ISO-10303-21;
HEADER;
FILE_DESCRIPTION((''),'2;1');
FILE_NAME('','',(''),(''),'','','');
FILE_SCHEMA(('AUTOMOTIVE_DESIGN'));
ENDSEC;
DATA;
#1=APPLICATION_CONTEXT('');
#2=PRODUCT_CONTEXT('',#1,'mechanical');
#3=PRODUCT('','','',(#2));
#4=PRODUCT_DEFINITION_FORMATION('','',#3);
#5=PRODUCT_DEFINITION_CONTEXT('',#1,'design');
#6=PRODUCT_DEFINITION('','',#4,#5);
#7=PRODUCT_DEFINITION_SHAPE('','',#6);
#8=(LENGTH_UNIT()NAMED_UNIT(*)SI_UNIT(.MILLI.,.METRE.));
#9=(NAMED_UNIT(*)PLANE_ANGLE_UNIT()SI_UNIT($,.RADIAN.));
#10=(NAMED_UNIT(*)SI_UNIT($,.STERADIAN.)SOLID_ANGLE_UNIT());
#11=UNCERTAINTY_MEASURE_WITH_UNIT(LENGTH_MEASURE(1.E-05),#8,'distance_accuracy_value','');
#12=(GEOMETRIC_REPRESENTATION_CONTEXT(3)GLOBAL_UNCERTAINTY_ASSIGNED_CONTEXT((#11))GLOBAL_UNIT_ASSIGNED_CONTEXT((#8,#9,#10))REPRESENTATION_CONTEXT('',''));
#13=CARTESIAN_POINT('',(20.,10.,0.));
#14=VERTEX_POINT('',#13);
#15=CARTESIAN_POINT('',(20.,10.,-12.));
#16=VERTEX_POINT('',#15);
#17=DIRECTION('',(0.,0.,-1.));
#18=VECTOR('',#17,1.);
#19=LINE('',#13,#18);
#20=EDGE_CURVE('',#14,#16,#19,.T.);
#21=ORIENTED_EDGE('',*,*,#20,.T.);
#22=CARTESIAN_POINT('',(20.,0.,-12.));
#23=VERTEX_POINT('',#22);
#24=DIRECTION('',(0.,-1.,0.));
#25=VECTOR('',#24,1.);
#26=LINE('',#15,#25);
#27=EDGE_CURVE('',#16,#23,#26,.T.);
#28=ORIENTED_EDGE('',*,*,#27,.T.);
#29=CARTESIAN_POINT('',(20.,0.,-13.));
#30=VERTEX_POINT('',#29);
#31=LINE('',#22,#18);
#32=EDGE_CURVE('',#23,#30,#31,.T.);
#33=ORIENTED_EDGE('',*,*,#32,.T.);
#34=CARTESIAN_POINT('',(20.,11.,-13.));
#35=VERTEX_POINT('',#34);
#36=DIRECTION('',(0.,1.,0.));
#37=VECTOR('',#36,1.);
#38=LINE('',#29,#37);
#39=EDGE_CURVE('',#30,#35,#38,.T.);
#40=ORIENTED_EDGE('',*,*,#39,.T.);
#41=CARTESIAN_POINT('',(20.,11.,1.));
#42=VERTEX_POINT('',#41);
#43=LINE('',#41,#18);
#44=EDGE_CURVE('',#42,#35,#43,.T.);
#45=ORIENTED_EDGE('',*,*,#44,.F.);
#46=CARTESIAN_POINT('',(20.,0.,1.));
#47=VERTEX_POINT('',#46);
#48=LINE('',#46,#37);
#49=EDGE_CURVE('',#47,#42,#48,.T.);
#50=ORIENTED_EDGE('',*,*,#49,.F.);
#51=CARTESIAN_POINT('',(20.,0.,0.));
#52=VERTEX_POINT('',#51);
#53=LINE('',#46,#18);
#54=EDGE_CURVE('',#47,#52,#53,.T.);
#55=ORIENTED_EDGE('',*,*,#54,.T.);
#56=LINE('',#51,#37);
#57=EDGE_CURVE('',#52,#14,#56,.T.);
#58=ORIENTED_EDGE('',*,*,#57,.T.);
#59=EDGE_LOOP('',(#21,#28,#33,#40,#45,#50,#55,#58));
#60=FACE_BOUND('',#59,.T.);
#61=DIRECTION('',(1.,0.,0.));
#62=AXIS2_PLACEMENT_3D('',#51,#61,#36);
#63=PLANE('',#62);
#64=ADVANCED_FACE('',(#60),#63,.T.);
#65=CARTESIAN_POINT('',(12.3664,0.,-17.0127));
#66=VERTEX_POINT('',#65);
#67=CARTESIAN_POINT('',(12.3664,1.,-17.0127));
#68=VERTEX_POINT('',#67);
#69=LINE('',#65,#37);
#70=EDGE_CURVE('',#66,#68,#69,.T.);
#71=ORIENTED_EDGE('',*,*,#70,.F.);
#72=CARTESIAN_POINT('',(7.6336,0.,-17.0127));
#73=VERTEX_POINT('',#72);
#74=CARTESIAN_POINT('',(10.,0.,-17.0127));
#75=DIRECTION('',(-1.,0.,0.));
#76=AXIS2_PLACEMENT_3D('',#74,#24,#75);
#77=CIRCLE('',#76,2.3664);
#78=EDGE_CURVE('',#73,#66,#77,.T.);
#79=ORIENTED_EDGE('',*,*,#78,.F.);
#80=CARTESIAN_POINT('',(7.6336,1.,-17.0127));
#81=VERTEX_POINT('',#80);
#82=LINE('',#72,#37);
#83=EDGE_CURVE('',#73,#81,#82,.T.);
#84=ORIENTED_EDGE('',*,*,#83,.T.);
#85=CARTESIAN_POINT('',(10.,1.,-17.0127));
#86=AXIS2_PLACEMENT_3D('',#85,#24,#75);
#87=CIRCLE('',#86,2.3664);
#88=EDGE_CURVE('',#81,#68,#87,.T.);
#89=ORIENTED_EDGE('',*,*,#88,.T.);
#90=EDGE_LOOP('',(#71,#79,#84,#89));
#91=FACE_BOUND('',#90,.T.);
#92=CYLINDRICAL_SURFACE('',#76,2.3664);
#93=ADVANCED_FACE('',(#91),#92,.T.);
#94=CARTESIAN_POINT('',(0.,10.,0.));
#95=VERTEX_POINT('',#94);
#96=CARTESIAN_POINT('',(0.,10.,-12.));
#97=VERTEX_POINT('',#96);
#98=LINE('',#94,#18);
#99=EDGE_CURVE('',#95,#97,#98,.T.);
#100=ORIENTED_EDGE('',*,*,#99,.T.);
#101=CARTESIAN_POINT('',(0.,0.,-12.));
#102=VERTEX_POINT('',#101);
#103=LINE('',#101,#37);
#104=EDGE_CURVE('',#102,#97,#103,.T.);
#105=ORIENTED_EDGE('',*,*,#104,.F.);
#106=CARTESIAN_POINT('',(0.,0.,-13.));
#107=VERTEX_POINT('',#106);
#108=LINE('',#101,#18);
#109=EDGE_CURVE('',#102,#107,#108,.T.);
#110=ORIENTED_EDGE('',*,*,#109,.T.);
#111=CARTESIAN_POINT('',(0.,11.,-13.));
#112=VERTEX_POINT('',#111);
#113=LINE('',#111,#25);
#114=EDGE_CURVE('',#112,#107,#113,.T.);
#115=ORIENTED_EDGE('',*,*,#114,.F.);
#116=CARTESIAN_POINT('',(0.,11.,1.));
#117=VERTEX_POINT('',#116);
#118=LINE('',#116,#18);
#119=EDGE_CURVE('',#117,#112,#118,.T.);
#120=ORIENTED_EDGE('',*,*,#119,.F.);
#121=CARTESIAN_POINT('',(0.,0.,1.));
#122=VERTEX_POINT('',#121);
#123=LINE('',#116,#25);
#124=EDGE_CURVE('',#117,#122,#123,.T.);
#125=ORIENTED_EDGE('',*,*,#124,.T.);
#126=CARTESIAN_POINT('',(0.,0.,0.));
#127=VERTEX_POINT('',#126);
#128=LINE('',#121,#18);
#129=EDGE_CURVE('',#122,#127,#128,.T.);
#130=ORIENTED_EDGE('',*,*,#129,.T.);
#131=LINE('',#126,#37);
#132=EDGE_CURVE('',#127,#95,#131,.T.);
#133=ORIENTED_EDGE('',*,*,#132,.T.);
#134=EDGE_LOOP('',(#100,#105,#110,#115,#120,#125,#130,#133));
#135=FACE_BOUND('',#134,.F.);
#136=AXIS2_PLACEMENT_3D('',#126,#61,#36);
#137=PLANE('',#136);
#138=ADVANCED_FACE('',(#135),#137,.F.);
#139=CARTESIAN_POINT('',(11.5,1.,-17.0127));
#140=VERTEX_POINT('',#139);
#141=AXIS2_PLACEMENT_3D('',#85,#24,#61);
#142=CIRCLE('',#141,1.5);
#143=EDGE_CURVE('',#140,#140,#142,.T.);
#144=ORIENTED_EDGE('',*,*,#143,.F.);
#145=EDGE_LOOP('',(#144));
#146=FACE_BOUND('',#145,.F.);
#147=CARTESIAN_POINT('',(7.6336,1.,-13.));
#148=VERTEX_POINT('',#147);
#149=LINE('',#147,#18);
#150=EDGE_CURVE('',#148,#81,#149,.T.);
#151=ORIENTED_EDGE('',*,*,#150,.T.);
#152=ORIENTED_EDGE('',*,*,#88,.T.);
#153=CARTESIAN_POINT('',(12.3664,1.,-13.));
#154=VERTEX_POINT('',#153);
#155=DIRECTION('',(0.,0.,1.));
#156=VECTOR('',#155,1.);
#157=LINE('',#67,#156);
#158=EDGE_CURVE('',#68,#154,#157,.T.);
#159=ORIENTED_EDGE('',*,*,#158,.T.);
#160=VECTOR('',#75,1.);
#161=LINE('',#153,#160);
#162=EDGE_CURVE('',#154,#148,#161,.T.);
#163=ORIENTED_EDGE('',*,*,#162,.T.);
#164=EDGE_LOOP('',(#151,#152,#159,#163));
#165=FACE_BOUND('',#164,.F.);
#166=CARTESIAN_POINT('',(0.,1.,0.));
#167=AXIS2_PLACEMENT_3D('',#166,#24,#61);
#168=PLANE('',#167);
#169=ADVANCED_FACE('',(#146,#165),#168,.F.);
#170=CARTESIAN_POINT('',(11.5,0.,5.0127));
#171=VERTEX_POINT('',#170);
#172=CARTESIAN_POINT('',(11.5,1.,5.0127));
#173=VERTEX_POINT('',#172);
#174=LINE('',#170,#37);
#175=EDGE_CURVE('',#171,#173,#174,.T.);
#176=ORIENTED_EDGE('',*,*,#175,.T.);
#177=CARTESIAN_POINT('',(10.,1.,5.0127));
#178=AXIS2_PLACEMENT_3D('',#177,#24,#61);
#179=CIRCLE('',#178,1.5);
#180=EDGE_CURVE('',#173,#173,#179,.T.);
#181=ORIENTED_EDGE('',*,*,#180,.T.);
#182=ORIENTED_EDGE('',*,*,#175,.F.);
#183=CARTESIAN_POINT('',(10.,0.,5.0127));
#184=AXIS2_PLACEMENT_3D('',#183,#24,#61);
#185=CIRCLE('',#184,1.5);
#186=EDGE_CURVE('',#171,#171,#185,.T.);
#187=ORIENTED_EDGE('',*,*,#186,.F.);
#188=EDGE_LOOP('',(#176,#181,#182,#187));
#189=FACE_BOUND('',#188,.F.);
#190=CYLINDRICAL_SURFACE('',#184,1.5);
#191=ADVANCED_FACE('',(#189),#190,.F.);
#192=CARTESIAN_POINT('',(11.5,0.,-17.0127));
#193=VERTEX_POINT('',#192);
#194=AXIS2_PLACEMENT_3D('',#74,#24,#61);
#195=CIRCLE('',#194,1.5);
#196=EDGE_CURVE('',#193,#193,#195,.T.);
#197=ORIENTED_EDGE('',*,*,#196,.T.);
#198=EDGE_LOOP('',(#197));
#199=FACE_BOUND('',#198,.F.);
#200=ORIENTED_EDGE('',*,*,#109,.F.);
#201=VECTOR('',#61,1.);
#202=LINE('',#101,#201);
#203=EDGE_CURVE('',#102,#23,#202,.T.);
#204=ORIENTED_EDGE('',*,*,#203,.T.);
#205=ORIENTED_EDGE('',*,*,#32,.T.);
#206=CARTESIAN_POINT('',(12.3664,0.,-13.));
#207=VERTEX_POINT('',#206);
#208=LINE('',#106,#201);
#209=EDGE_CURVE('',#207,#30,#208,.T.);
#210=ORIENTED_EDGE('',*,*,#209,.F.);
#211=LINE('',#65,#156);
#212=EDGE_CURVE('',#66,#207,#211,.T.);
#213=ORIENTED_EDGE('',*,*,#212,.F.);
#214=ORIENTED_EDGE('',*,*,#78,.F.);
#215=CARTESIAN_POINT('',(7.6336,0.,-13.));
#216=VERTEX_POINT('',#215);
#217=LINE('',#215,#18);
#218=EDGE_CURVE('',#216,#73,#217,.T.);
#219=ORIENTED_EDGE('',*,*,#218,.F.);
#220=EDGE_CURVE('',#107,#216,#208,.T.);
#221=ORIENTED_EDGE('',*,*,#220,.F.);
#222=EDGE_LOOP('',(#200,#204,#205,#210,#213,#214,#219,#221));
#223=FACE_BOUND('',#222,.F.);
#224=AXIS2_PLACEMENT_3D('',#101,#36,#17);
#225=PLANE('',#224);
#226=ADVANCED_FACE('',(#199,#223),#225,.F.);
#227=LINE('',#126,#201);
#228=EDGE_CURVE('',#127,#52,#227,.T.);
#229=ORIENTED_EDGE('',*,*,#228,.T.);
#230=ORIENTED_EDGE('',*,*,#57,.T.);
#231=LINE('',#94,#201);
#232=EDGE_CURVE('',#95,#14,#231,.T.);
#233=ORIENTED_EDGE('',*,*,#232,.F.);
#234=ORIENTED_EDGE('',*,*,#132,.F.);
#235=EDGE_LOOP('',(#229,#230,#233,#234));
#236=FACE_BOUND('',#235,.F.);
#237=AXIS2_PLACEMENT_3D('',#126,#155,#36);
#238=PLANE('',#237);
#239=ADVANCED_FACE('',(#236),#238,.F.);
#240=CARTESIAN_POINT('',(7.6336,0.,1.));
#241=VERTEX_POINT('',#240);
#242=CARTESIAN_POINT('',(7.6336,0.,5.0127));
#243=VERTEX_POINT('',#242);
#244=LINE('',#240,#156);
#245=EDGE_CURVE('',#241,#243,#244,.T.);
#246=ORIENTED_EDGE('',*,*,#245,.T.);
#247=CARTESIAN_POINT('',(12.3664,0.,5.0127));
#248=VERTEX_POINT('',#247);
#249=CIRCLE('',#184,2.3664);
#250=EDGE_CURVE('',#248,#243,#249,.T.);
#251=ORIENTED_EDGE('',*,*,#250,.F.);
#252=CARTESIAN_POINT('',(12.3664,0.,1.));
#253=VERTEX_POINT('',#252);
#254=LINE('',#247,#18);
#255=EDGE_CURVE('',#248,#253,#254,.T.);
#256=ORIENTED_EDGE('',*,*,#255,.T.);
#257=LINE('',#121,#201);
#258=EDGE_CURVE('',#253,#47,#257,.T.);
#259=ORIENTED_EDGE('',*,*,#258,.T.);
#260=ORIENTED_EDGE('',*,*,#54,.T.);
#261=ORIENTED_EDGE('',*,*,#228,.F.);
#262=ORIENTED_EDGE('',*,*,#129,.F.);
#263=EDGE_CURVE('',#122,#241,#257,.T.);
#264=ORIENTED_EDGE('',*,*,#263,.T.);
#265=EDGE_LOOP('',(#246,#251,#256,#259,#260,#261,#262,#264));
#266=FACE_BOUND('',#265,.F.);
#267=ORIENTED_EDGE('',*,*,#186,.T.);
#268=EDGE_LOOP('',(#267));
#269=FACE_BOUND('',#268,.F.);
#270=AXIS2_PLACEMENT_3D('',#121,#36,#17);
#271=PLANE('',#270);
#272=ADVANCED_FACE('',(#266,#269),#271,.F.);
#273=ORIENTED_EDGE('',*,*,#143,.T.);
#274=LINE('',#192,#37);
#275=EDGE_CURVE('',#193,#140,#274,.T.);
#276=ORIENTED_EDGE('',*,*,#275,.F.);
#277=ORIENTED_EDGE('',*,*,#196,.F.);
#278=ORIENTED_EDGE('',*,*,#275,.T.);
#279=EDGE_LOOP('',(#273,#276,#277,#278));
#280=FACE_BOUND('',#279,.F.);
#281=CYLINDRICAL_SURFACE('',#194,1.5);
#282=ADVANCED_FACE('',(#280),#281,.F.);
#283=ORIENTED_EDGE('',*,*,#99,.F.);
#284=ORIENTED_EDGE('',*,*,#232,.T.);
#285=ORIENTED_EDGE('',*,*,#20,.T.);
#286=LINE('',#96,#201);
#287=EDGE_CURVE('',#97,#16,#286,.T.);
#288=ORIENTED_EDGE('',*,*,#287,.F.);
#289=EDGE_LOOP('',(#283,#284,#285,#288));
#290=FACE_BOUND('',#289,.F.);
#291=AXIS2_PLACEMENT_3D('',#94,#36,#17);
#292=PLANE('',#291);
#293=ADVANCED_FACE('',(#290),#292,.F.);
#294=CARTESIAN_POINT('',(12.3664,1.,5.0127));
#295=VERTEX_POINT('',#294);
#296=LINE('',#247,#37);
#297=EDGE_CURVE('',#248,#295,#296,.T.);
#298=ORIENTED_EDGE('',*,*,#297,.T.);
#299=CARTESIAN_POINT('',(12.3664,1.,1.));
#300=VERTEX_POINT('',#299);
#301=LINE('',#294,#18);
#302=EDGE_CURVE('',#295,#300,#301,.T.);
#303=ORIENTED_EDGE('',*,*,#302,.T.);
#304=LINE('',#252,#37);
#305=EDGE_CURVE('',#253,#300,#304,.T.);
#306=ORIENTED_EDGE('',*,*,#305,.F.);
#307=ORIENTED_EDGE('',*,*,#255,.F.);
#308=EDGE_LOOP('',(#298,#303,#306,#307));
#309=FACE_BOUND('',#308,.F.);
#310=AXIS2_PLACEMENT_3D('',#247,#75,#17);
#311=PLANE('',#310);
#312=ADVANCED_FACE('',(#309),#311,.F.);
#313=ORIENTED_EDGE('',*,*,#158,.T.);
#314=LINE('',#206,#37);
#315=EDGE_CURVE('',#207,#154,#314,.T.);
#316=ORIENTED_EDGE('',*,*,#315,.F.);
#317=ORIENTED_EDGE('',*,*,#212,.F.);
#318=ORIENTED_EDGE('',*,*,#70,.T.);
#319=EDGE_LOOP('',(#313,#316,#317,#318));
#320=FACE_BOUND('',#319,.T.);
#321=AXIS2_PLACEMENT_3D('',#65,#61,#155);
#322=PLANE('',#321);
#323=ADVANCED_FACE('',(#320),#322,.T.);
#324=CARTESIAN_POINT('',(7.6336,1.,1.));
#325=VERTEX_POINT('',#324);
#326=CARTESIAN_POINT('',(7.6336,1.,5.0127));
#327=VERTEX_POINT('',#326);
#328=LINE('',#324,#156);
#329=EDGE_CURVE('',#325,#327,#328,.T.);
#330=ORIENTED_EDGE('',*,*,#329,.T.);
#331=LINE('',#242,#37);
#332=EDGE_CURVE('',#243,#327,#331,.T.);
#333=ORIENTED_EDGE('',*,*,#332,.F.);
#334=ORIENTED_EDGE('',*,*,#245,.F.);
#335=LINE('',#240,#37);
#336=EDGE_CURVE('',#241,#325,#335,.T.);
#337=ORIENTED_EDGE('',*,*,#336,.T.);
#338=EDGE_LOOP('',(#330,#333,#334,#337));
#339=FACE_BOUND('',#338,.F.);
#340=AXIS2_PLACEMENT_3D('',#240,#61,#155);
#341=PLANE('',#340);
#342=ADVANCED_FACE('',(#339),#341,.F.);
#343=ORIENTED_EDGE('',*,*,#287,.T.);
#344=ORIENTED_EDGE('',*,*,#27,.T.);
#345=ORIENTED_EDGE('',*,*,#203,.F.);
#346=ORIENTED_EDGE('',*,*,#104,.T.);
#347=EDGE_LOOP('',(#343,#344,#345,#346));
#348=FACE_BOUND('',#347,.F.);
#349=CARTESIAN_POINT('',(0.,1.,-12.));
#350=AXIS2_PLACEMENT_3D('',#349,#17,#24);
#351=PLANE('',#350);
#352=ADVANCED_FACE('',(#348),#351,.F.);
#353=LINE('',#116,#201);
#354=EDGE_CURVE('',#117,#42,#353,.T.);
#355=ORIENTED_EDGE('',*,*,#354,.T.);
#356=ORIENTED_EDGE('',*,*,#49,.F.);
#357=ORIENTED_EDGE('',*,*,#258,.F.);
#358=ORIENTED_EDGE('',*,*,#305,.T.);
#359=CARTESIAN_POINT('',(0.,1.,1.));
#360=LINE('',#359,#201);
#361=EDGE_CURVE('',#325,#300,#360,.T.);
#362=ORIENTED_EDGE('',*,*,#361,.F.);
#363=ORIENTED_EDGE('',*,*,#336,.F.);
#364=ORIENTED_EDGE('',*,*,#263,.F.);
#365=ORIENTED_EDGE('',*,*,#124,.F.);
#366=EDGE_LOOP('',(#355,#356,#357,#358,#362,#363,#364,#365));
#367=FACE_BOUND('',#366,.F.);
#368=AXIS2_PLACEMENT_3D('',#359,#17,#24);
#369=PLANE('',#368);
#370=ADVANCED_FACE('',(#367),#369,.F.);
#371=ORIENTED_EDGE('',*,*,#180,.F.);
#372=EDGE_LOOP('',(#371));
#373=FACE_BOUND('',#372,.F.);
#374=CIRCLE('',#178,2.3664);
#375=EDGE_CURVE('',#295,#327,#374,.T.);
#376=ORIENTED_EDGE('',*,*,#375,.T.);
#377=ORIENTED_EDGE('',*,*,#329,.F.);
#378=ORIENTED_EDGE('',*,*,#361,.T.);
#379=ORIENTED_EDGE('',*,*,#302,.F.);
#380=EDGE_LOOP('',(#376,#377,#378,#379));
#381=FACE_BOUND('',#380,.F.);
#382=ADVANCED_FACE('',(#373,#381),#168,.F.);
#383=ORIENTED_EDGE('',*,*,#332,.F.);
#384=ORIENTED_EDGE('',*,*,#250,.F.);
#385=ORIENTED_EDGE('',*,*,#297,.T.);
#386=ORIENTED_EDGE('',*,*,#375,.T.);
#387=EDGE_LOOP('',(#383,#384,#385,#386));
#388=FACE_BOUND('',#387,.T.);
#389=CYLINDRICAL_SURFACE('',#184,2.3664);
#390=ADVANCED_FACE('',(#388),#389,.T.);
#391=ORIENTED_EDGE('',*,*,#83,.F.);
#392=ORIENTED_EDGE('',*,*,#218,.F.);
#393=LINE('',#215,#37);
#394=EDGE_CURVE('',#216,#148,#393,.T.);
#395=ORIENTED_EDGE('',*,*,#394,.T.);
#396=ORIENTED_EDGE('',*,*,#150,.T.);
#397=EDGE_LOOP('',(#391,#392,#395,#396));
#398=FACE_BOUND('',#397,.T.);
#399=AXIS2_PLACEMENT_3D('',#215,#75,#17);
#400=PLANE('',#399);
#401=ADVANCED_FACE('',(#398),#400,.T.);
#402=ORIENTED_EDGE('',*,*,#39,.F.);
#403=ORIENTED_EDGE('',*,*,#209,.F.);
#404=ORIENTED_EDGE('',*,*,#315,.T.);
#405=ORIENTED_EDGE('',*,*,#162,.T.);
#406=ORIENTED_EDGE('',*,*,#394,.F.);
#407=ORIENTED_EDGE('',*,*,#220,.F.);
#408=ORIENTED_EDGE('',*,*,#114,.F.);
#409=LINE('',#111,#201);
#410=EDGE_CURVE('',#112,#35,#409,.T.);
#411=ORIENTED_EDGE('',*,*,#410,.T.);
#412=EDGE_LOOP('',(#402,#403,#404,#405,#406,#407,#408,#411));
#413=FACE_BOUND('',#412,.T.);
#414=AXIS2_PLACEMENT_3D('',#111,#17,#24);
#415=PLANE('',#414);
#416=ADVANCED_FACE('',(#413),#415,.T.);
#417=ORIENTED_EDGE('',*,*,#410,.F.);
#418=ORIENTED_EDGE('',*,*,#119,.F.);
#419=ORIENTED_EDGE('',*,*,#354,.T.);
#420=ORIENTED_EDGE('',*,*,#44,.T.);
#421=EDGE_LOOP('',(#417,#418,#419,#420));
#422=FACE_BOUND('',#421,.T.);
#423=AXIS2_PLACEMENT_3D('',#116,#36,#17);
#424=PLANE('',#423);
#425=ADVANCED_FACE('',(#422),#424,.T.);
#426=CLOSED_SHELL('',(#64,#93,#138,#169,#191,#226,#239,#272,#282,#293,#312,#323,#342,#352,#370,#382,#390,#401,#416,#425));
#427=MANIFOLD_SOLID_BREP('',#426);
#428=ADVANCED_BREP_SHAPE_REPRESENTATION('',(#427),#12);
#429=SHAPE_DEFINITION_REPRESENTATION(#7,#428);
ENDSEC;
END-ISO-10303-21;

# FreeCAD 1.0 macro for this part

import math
import FreeCAD as App
import Part
import Sketcher
from FreeCAD import Vector

doc = App.newDocument("Part")
body = doc.addObject("PartDesign::Body", "Body")

sketch1 = body.newObject("Sketcher::SketchObject", "Sketch")
sketch1.AttachmentSupport = (doc.getObject("YZ_Plane"), [""])
sketch1.MapMode = "FlatFace"
sketch1.addGeometry(Part.LineSegment(Vector(0, 1, 0), Vector(0, 0, 0)), False)
sketch1.addGeometry(Part.LineSegment(Vector(0, 0, 0), Vector(10, 0, 0)), False)
sketch1.addGeometry(Part.LineSegment(Vector(10, 0, 0), Vector(10, -12, 0)), False)
sketch1.addGeometry(Part.LineSegment(Vector(10, -12, 0), Vector(0, -12, 0)), False)
sketch1.addGeometry(Part.LineSegment(Vector(0, -12, 0), Vector(0, -13, 0)), False)
sketch1.addGeometry(Part.LineSegment(Vector(0, -13, 0), Vector(11, -13, 0)), False)
sketch1.addGeometry(Part.LineSegment(Vector(11, -13, 0), Vector(11, 1, 0)), False)
sketch1.addGeometry(Part.LineSegment(Vector(11, 1, 0), Vector(0, 1, 0)), False)
sketch1.addConstraint(Sketcher.Constraint("Coincident", 0, 2, 1, 1))
sketch1.addConstraint(Sketcher.Constraint("Coincident", 1, 2, 2, 1))
sketch1.addConstraint(Sketcher.Constraint("Coincident", 2, 2, 3, 1))
sketch1.addConstraint(Sketcher.Constraint("Coincident", 3, 2, 4, 1))
sketch1.addConstraint(Sketcher.Constraint("Coincident", 4, 2, 5, 1))
sketch1.addConstraint(Sketcher.Constraint("Coincident", 5, 2, 6, 1))
sketch1.addConstraint(Sketcher.Constraint("Coincident", 6, 2, 7, 1))
sketch1.addConstraint(Sketcher.Constraint("Coincident", 7, 2, 0, 1))
sketch1.addConstraint(Sketcher.Constraint("Vertical", 0))
sketch1.addConstraint(Sketcher.Constraint("Horizontal", 1))
sketch1.addConstraint(Sketcher.Constraint("Vertical", 2))
sketch1.addConstraint(Sketcher.Constraint("Horizontal", 3))
sketch1.addConstraint(Sketcher.Constraint("Vertical", 4))
sketch1.addConstraint(Sketcher.Constraint("Horizontal", 5))
sketch1.addConstraint(Sketcher.Constraint("Vertical", 6))
sketch1.addConstraint(Sketcher.Constraint("Horizontal", 7))
sketch1.addConstraint(Sketcher.Constraint("Coincident", 0, 2, -1, 1))
sketch1.addConstraint(Sketcher.Constraint("PointOnObject", 3, 2, -2))
sketch1.addConstraint(Sketcher.Constraint("Equal", 0, 4))
sketch1.addConstraint(Sketcher.Constraint("DistanceX", 1, 1, 1, 2, 10.0))
sketch1.addConstraint(Sketcher.Constraint("DistanceX", 5, 1, 5, 2, 11.0))
sketch1.addConstraint(Sketcher.Constraint("DistanceY", 0, 2, 0, 1, 1.0))
sketch1.addConstraint(Sketcher.Constraint("DistanceY", 2, 2, 2, 1, 12.0))
pad1 = body.newObject("PartDesign::Pad", "Pad")
pad1.Profile = sketch1
pad1.Length = 20

sketch2 = body.newObject("Sketcher::SketchObject", "Sketch001")
sketch2.AttachmentSupport = (doc.getObject("XZ_Plane"), [""])
sketch2.MapMode = "FlatFace"
sketch2.addGeometry(Part.LineSegment(Vector(7.6, 5, 0), Vector(7.6, 1, 0)), False)
sketch2.addGeometry(Part.LineSegment(Vector(7.6, 1, 0), Vector(12.4, 1, 0)), False)
sketch2.addGeometry(Part.LineSegment(Vector(12.4, 1, 0), Vector(12.4, 5, 0)), False)
sketch2.addGeometry(Part.ArcOfCircle(Part.Circle(Vector(10, 5, 0), Vector(0, 0, 1), 2.4), math.radians(0), math.radians(180)), False)
sketch2.addGeometry(Part.Circle(Vector(10, 5, 0), Vector(0, 0, 1), 1.5), False)
sketch2.addGeometry(Part.LineSegment(Vector(12.4, -13, 0), Vector(7.6, -13, 0)), False)
sketch2.addGeometry(Part.LineSegment(Vector(7.6, -13, 0), Vector(7.6, -17, 0)), False)
sketch2.addGeometry(Part.ArcOfCircle(Part.Circle(Vector(10, -17, 0), Vector(0, 0, 1), 2.4), math.radians(180), math.radians(360)), False)
sketch2.addGeometry(Part.LineSegment(Vector(12.4, -17, 0), Vector(12.4, -13, 0)), False)
sketch2.addGeometry(Part.Circle(Vector(10, -17, 0), Vector(0, 0, 1), 1.5), False)
sketch2.addConstraint(Sketcher.Constraint("Coincident", 0, 2, 1, 1))
sketch2.addConstraint(Sketcher.Constraint("Coincident", 1, 2, 2, 1))
sketch2.addConstraint(Sketcher.Constraint("Tangent", 2, 2, 3, 1))
sketch2.addConstraint(Sketcher.Constraint("Tangent", 3, 2, 0, 1))
sketch2.addConstraint(Sketcher.Constraint("Coincident", 5, 2, 6, 1))
sketch2.addConstraint(Sketcher.Constraint("Tangent", 6, 2, 7, 1))
sketch2.addConstraint(Sketcher.Constraint("Tangent", 7, 2, 8, 1))
sketch2.addConstraint(Sketcher.Constraint("Coincident", 8, 2, 5, 1))
sketch2.addConstraint(Sketcher.Constraint("Vertical", 0))
sketch2.addConstraint(Sketcher.Constraint("Horizontal", 1))
sketch2.addConstraint(Sketcher.Constraint("Vertical", 2))
sketch2.addConstraint(Sketcher.Constraint("Horizontal", 5))
sketch2.addConstraint(Sketcher.Constraint("Vertical", 6))
sketch2.addConstraint(Sketcher.Constraint("Vertical", 8))
sketch2.addConstraint(Sketcher.Constraint("Coincident", 4, 3, 3, 3))
sketch2.addConstraint(Sketcher.Constraint("Coincident", 9, 3, 7, 3))
sketch2.addConstraint(Sketcher.Constraint("Equal", 3, 7))
sketch2.addConstraint(Sketcher.Constraint("Equal", 4, 9))
sketch2.addConstraint(Sketcher.Constraint("Vertical", 4, 3, 7, 3))
sketch2.addConstraint(Sketcher.Constraint("Equal", 2, 6))
sketch2.addConstraint(Sketcher.Constraint("Diameter", 4, 3.0))
sketch2.addConstraint(Sketcher.Constraint("DistanceX", -1, 1, 3, 3, 10.0))
sketch2.addConstraint(Sketcher.Constraint("DistanceY", -1, 1, 0, 2, 1.0))
sketch2.addConstraint(Sketcher.Constraint("DistanceY", 5, 2, -1, 1, 13.0))
sketch2.addConstraint(Sketcher.Constraint("Radius", 3, 2.3664))
sketch2.addConstraint(Sketcher.Constraint("DistanceY", 0, 2, 0, 1, 4.0127))
pad2 = body.newObject("PartDesign::Pad", "Pad001")
pad2.Profile = sketch2
pad2.Length = 1
pad2.Reversed = True

doc.recompute()
